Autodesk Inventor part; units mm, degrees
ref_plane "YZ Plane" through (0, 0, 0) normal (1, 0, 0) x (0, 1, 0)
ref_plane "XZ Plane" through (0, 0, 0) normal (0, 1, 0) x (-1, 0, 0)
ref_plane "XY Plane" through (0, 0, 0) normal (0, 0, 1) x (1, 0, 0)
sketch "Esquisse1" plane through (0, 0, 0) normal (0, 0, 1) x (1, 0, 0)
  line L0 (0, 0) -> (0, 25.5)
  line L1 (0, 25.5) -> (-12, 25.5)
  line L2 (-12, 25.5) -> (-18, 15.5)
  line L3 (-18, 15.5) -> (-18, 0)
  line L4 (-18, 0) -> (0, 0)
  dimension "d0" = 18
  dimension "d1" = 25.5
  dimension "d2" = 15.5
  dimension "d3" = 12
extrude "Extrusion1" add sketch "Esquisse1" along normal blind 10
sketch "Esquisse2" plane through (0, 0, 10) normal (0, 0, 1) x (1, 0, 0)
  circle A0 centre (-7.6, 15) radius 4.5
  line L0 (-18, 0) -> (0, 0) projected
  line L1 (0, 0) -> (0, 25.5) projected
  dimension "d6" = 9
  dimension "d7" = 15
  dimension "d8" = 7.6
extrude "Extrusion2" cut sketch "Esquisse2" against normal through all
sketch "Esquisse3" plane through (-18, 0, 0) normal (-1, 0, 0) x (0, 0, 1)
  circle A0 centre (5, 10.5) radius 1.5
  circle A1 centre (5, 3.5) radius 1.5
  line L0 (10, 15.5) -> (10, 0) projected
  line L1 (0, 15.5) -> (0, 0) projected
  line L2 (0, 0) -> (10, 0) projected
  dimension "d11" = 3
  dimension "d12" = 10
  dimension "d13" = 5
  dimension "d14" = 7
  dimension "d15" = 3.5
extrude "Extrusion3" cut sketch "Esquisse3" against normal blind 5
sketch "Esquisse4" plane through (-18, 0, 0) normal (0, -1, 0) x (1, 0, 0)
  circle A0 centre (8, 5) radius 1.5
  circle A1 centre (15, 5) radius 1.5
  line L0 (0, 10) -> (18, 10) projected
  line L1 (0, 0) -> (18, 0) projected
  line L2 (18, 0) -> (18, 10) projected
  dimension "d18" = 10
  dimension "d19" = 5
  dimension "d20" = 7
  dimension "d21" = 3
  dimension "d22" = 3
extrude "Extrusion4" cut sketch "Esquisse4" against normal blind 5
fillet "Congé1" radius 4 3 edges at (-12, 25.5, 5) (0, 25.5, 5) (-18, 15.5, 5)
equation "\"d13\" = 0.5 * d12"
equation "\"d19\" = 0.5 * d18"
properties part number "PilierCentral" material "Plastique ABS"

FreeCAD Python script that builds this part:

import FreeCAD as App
import Part
import Sketcher
Q = App.Units.Quantity


def edges_at(feature, points):
    """Names of the edges that pass closest to the given points."""
    edges = feature.Shape.Edges
    near = lambda p: min(range(len(edges)), key=lambda i: edges[i].distToShape(Part.Vertex(*p))[0])
    return sorted({f"Edge{near(p) + 1}" for p in points})

doc = App.newDocument("Part")
body = doc.addObject("PartDesign::Body", "Body")

# Sketch on XY plane
sketch1 = doc.addObject("Sketcher::SketchObject", "Sketch")
body.addObject(sketch1)
sketch1.AttachmentSupport = (doc.XY_Plane, [""])
sketch1.MapMode = "FlatFace"
sketch1.addGeometry([
    Part.LineSegment(App.Vector(-18, 0, 0), App.Vector(0, 0, 0)),  # 0
    Part.LineSegment(App.Vector(0, 0, 0), App.Vector(0, 25.5, 0)),  # 1
    Part.LineSegment(App.Vector(0, 25.5, 0), App.Vector(-12, 25.5, 0)),  # 2
    Part.LineSegment(App.Vector(-12, 25.5, 0), App.Vector(-18, 15.5, 0)),  # 3
    Part.LineSegment(App.Vector(-18, 15.5, 0), App.Vector(-18, 0, 0)),  # 4
], False)
sketch1.addConstraint([
    Sketcher.Constraint("Coincident", 0, 2, 1, 1),
    Sketcher.Constraint("Coincident", 1, 2, 2, 1),
    Sketcher.Constraint("Coincident", 2, 2, 3, 1),
    Sketcher.Constraint("Coincident", 3, 2, 4, 1),
    Sketcher.Constraint("Coincident", 4, 2, 0, 1),
    Sketcher.Constraint("Horizontal", 0),
    Sketcher.Constraint("Vertical", 1),
    Sketcher.Constraint("Horizontal", 2),
    Sketcher.Constraint("Vertical", 4),
    Sketcher.Constraint("Coincident", 0, 2, -1, 1),
    Sketcher.Constraint("DistanceX", 0, 1, 0, 2, Q("18 mm")),
    Sketcher.Constraint("DistanceX", 2, 2, 2, 1, Q("12 mm")),
    Sketcher.Constraint("DistanceY", 1, 1, 1, 2, Q("25.5 mm")),
    Sketcher.Constraint("DistanceY", 4, 2, 4, 1, Q("15.5 mm")),
])
pad1 = doc.addObject("PartDesign::Pad", "Pad")
body.addObject(pad1)
pad1.Profile = sketch1
pad1.Length = 10

# Sketch on XY plane
sketch2 = doc.addObject("Sketcher::SketchObject", "Sketch001")
body.addObject(sketch2)
sketch2.AttachmentSupport = (doc.XY_Plane, [""])
sketch2.MapMode = "FlatFace"
sketch2.AttachmentOffset = App.Placement(App.Vector(0, 0, 10), App.Rotation())
sketch2.addGeometry(Part.Circle(App.Vector(-7.6, 15, 0), App.Vector(0, 0, 1), 4.5), False)
sketch2.addConstraint([
    Sketcher.Constraint("Diameter", 0, Q("9 mm")),
    Sketcher.Constraint("DistanceY", -1, 1, 0, 3, Q("15 mm")),
    Sketcher.Constraint("DistanceX", 0, 3, -1, 1, Q("7.6 mm")),
])
pocket1 = doc.addObject("PartDesign::Pocket", "Pocket")
body.addObject(pocket1)
pocket1.Profile = sketch2
pocket1.Type = "ThroughAll"

# Sketch on YZ plane
sketch3 = doc.addObject("Sketcher::SketchObject", "Sketch002")
body.addObject(sketch3)
sketch3.AttachmentSupport = (doc.YZ_Plane, [""])
sketch3.MapMode = "FlatFace"
sketch3.AttachmentOffset = App.Placement(App.Vector(0, 0, -18), App.Rotation())
sketch3.addGeometry([
    Part.Circle(App.Vector(10.5, 5, 0), App.Vector(0, 0, 1), 1.5),
    Part.Circle(App.Vector(3.5, 5, 0), App.Vector(0, 0, 1), 1.5),
], False)
sketch3.addConstraint([
    Sketcher.Constraint("Equal", 0, 1),
    Sketcher.Constraint("Horizontal", 0, 3, 1, 3),
    Sketcher.Constraint("Diameter", 0, Q("3 mm")),
    Sketcher.Constraint("DistanceY", -1, 1, 0, 3, Q("5 mm")),
    Sketcher.Constraint("DistanceX", 1, 3, 0, 3, Q("7 mm")),
    Sketcher.Constraint("DistanceX", -1, 1, 1, 3, Q("3.5 mm")),
])
pocket2 = doc.addObject("PartDesign::Pocket", "Pocket001")
body.addObject(pocket2)
pocket2.Profile = sketch3
pocket2.Length = 5
pocket2.Reversed = True

# Sketch on XZ plane
sketch4 = doc.addObject("Sketcher::SketchObject", "Sketch003")
body.addObject(sketch4)
sketch4.AttachmentSupport = (doc.XZ_Plane, [""])
sketch4.MapMode = "FlatFace"
sketch4.addGeometry([
    Part.Circle(App.Vector(-10, 5, 0), App.Vector(0, 0, 1), 1.5),
    Part.Circle(App.Vector(-3, 5, 0), App.Vector(0, 0, 1), 1.5),
], False)
sketch4.addConstraint([
    Sketcher.Constraint("Equal", 0, 1),
    Sketcher.Constraint("Horizontal", 0, 3, 1, 3),
    Sketcher.Constraint("Diameter", 0, Q("3 mm")),
    Sketcher.Constraint("DistanceX", 0, 3, -1, 1, Q("10 mm")),
    Sketcher.Constraint("DistanceY", -1, 1, 0, 3, Q("5 mm")),
    Sketcher.Constraint("DistanceX", 1, 3, -1, 1, Q("3 mm")),
])
pocket3 = doc.addObject("PartDesign::Pocket", "Pocket002")
body.addObject(pocket3)
pocket3.Profile = sketch4
pocket3.Length = 5
doc.recompute()

fillet = doc.addObject("PartDesign::Fillet", "Fillet")
body.addObject(fillet)
fillet.Base = (pocket3, edges_at(pocket3, [(-12, 25.5, 5), (0, 25.5, 5), (-18, 15.5, 5)]))
fillet.Radius = 4

doc.recompute()
